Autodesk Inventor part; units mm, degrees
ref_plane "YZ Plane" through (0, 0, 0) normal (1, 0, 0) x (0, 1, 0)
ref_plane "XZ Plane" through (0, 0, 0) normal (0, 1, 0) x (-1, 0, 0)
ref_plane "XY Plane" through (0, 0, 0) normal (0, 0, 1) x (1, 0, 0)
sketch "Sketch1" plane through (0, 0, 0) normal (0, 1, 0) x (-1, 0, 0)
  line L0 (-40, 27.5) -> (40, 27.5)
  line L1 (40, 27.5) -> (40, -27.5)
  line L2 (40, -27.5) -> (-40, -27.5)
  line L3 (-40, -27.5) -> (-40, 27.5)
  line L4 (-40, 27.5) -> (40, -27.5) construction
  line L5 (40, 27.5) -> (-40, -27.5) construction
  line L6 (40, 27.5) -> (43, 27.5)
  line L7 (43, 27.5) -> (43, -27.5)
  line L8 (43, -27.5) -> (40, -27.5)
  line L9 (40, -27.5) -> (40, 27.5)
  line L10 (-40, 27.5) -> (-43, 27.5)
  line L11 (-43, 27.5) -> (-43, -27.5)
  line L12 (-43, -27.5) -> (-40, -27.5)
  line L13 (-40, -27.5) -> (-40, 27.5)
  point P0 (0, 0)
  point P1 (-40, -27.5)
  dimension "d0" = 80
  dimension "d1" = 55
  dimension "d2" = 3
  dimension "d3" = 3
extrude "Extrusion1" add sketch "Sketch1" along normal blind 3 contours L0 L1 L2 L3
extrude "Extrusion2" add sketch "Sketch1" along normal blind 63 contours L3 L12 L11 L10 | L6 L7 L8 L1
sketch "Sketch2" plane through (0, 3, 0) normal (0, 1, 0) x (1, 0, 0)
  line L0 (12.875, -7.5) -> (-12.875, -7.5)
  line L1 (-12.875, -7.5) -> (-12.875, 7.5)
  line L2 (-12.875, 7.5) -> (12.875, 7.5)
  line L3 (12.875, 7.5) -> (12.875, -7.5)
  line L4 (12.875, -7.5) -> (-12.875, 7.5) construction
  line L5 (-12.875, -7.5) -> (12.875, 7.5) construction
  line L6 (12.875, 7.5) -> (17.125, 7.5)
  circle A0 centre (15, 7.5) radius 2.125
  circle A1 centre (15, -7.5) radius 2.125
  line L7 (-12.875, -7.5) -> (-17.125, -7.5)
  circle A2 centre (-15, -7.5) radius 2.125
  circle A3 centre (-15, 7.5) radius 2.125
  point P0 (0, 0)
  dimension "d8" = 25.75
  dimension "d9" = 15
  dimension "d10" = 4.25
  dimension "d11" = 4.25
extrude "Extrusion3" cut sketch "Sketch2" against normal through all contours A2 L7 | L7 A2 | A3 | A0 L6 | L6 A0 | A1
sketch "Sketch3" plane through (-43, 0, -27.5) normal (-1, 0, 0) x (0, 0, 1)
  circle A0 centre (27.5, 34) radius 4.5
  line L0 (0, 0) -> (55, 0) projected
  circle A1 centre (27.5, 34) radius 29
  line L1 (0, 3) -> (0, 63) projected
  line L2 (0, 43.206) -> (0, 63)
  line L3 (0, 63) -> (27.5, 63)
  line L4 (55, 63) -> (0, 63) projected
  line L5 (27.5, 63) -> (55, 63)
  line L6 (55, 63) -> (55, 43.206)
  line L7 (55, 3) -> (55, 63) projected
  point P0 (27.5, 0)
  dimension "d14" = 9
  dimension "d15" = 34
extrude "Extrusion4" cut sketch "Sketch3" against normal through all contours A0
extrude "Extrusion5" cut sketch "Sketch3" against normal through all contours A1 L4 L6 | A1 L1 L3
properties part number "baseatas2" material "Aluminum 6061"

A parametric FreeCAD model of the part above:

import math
import FreeCAD as App
import Part
import Sketcher
from FreeCAD import Vector


def add_polygon(sketch, points):
    """Adds a closed chain of lines whose ends are joined by coincident constraints."""
    first, n = sketch.GeometryCount, len(points)
    for a, b in zip(points, points[1:] + points[:1]):
        sketch.addGeometry(Part.LineSegment(App.Vector(*a, 0), App.Vector(*b, 0)), False)
    for i in range(n):
        sketch.addConstraint(Sketcher.Constraint("Coincident", first + i, 2, first + (i + 1) % n, 1))

doc = App.newDocument("Part")
body = doc.addObject("PartDesign::Body", "Body")

# Sketch on XZ plane
sketch1 = body.newObject("Sketcher::SketchObject", "Sketch")
sketch1.AttachmentSupport = (doc.getObject("XZ_Plane"), [""])
sketch1.MapMode = "FlatFace"
add_polygon(sketch1, [(-40, 28), (40, 28), (40, -28), (-40, -28)])  # lines 0-3
sketch1.addConstraint(Sketcher.Constraint("Horizontal", 0))
sketch1.addConstraint(Sketcher.Constraint("Vertical", 1))
sketch1.addConstraint(Sketcher.Constraint("Horizontal", 2))
sketch1.addConstraint(Sketcher.Constraint("Vertical", 3))
sketch1.addConstraint(Sketcher.Constraint("Symmetric", 0, 2, 2, 2, -1, 1))
sketch1.addConstraint(Sketcher.Constraint("DistanceX", 0, 1, 0, 2, 80.0))
sketch1.addConstraint(Sketcher.Constraint("DistanceY", 1, 2, 1, 1, 55.0))
pad1 = body.newObject("PartDesign::Pad", "Pad")
pad1.Profile = sketch1
pad1.Length = 3
pad1.Reversed = True

# Sketch on XZ plane
sketch2 = body.newObject("Sketcher::SketchObject", "Sketch001")
sketch2.AttachmentSupport = (doc.getObject("XZ_Plane"), [""])
sketch2.MapMode = "FlatFace"
add_polygon(sketch2, [(40, -27.5), (40, 27.5), (43, 27.5), (43, -27.5)])  # lines 0-3
add_polygon(sketch2, [(-43, 27.5), (-40, 27.5), (-40, -27.5), (-43, -27.5)])  # lines 4-7
sketch2.addConstraint(Sketcher.Constraint("Vertical", 0))
sketch2.addConstraint(Sketcher.Constraint("Horizontal", 1))
sketch2.addConstraint(Sketcher.Constraint("Vertical", 2))
sketch2.addConstraint(Sketcher.Constraint("Horizontal", 3))
sketch2.addConstraint(Sketcher.Constraint("Horizontal", 4))
sketch2.addConstraint(Sketcher.Constraint("Vertical", 5))
sketch2.addConstraint(Sketcher.Constraint("Horizontal", 6))
sketch2.addConstraint(Sketcher.Constraint("Vertical", 7))
sketch2.addConstraint(Sketcher.Constraint("Symmetric", 3, 2, 4, 2, -1, 1))
sketch2.addConstraint(Sketcher.Constraint("Symmetric", 1, 2, 6, 2, -1, 1))
sketch2.addConstraint(Sketcher.Constraint("Horizontal", 1, 2, 4, 2))
sketch2.addConstraint(Sketcher.Constraint("DistanceX", 1, 1, 1, 2, 3.0))
sketch2.addConstraint(Sketcher.Constraint("DistanceY", 0, 1, 0, 2, 55.0))
sketch2.addConstraint(Sketcher.Constraint("DistanceX", 4, 2, 0, 2, 80.0))
pad2 = body.newObject("PartDesign::Pad", "Pad001")
pad2.Profile = sketch2
pad2.Length = 63
pad2.Reversed = True

# Sketch on XZ plane
sketch3 = body.newObject("Sketcher::SketchObject", "Sketch002")
sketch3.AttachmentSupport = (doc.getObject("XZ_Plane"), [""])
sketch3.MapMode = "FlatFace"
sketch3.AttachmentOffset = App.Placement(Vector(0, 0, -3), App.Rotation())
sketch3.addGeometry(Part.Circle(Vector(-15, 7.5, 0), Vector(0, 0, 1), 2.1), False)
sketch3.addGeometry(Part.Circle(Vector(-15, -7.5, 0), Vector(0, 0, 1), 2.1), False)
sketch3.addGeometry(Part.Circle(Vector(15, -7.5, 0), Vector(0, 0, 1), 2.1), False)
sketch3.addGeometry(Part.Circle(Vector(15, 7.5, 0), Vector(0, 0, 1), 2.1), False)
sketch3.addConstraint(Sketcher.Constraint("Equal", 0, 1))
sketch3.addConstraint(Sketcher.Constraint("Equal", 1, 2))
sketch3.addConstraint(Sketcher.Constraint("Equal", 2, 3))
sketch3.addConstraint(Sketcher.Constraint("Symmetric", 0, 3, 2, 3, -1, 1))
sketch3.addConstraint(Sketcher.Constraint("Symmetric", 1, 3, 3, 3, -1, 1))
sketch3.addConstraint(Sketcher.Constraint("Symmetric", 1, 3, 2, 3, -2))
sketch3.addConstraint(Sketcher.Constraint("Diameter", 0, 4.25))
sketch3.addConstraint(Sketcher.Constraint("DistanceX", 0, 3, -1, 1, 15.0))
sketch3.addConstraint(Sketcher.Constraint("DistanceY", 1, 3, 0, 3, 15.0))
pocket1 = body.newObject("PartDesign::Pocket", "Pocket")
pocket1.Profile = sketch3
pocket1.Type = "ThroughAll"
pocket1.Reversed = True

# Sketch on YZ plane
sketch4 = body.newObject("Sketcher::SketchObject", "Sketch003")
sketch4.AttachmentSupport = (doc.getObject("YZ_Plane"), [""])
sketch4.MapMode = "FlatFace"
sketch4.AttachmentOffset = App.Placement(Vector(0, 0, -43), App.Rotation())
sketch4.addGeometry(Part.Circle(Vector(34, 0, 0), Vector(0, 0, 1), 4.5), False)
sketch4.addConstraint(Sketcher.Constraint("PointOnObject", 0, 3, -1))
sketch4.addConstraint(Sketcher.Constraint("Diameter", 0, 9.0))
sketch4.addConstraint(Sketcher.Constraint("DistanceX", -1, 1, 0, 3, 34.0))
pocket2 = body.newObject("PartDesign::Pocket", "Pocket001")
pocket2.Profile = sketch4
pocket2.Type = "ThroughAll"
pocket2.Reversed = True

# Sketch on YZ plane
sketch5 = body.newObject("Sketcher::SketchObject", "Sketch004")
sketch5.AttachmentSupport = (doc.getObject("YZ_Plane"), [""])
sketch5.MapMode = "FlatFace"
sketch5.AttachmentOffset = App.Placement(Vector(0, 0, -43), App.Rotation())
sketch5.addGeometry(Part.ArcOfCircle(Part.Circle(Vector(34, 0, 0), Vector(0, 0, 1), 29), math.radians(0), math.radians(71)), False)
sketch5.addGeometry(Part.LineSegment(Vector(43, 28, 0), Vector(63, 28, 0)), False)
sketch5.addGeometry(Part.LineSegment(Vector(63, 28, 0), Vector(63, 0, 0)), False)
sketch5.addGeometry(Part.ArcOfCircle(Part.Circle(Vector(34, 0, 0), Vector(0, 0, 1), 29), math.radians(-71), math.radians(0)), False)
sketch5.addGeometry(Part.LineSegment(Vector(63, 0, 0), Vector(63, -28, 0)), False)
sketch5.addGeometry(Part.LineSegment(Vector(63, -28, 0), Vector(43, -28, 0)), False)
sketch5.addConstraint(Sketcher.Constraint("Coincident", 0, 2, 1, 1))
sketch5.addConstraint(Sketcher.Constraint("Coincident", 1, 2, 2, 1))
sketch5.addConstraint(Sketcher.Constraint("Tangent", 2, 2, 0, 1))
sketch5.addConstraint(Sketcher.Constraint("Tangent", 3, 2, 4, 1))
sketch5.addConstraint(Sketcher.Constraint("Coincident", 4, 2, 5, 1))
sketch5.addConstraint(Sketcher.Constraint("Coincident", 5, 2, 3, 1))
sketch5.addConstraint(Sketcher.Constraint("Horizontal", 1))
sketch5.addConstraint(Sketcher.Constraint("Vertical", 2))
sketch5.addConstraint(Sketcher.Constraint("Vertical", 4))
sketch5.addConstraint(Sketcher.Constraint("Horizontal", 5))
sketch5.addConstraint(Sketcher.Constraint("Coincident", 3, 3, 0, 3))
sketch5.addConstraint(Sketcher.Constraint("Equal", 0, 3))
sketch5.addConstraint(Sketcher.Constraint("Symmetric", 0, 2, 5, 2, -1))
sketch5.addConstraint(Sketcher.Constraint("DistanceX", -1, 1, 0, 3, 34.0))
sketch5.addConstraint(Sketcher.Constraint("Radius", 0, 29.0))
sketch5.addConstraint(Sketcher.Constraint("DistanceY", 2, 2, 2, 1, 27.5))
pocket3 = body.newObject("PartDesign::Pocket", "Pocket002")
pocket3.Profile = sketch5
pocket3.Type = "ThroughAll"
pocket3.Reversed = True

doc.recompute()
